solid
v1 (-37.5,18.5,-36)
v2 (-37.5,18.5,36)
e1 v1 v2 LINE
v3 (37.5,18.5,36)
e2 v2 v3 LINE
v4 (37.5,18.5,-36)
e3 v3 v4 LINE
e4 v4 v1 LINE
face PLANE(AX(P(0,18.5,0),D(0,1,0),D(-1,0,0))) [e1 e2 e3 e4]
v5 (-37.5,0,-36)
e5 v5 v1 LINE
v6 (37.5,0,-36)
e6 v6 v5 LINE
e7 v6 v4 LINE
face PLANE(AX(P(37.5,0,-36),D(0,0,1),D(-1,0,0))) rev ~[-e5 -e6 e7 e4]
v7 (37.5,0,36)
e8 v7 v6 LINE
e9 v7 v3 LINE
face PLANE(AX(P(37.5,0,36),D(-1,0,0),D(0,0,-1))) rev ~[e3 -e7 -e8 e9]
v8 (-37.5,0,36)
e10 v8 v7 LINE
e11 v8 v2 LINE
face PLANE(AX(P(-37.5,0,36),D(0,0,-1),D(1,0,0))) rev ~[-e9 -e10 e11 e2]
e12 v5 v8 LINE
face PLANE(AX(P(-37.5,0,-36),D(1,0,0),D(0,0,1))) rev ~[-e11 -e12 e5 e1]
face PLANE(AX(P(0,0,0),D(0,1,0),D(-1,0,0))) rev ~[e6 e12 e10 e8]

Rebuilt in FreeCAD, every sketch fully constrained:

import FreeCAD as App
import Part
import Sketcher

doc = App.newDocument("Part")
body = doc.addObject("PartDesign::Body", "Body")

# Sketch on XZ plane
sketch1 = body.newObject("Sketcher::SketchObject", "Sketch")
sketch1.AttachmentSupport = (doc.getObject("XZ_Plane"), [""])
sketch1.MapMode = "FlatFace"
sketch1.addGeometry([
    Part.LineSegment(App.Vector(-38, -36, 0), App.Vector(-38, 36, 0)),
    Part.LineSegment(App.Vector(-38, 36, 0), App.Vector(38, 36, 0)),
    Part.LineSegment(App.Vector(38, 36, 0), App.Vector(38, -36, 0)),
    Part.LineSegment(App.Vector(38, -36, 0), App.Vector(-38, -36, 0)),
], False)
sketch1.addConstraint([
    Sketcher.Constraint("Coincident", 0, 2, 1, 1),
    Sketcher.Constraint("Coincident", 1, 2, 2, 1),
    Sketcher.Constraint("Coincident", 2, 2, 3, 1),
    Sketcher.Constraint("Coincident", 3, 2, 0, 1),
    Sketcher.Constraint("Vertical", 0),
    Sketcher.Constraint("Horizontal", 1),
    Sketcher.Constraint("Vertical", 2),
    Sketcher.Constraint("Horizontal", 3),
    Sketcher.Constraint("Symmetric", 0, 2, 2, 2, -1, 1),
    Sketcher.Constraint("DistanceX", 1, 1, 1, 2, 75.0),
    Sketcher.Constraint("DistanceY", 0, 1, 0, 2, 72.0),
])
pad1 = body.newObject("PartDesign::Pad", "Pad")
pad1.Profile = sketch1
pad1.Length = 18.5
pad1.Reversed = True

doc.recompute()
